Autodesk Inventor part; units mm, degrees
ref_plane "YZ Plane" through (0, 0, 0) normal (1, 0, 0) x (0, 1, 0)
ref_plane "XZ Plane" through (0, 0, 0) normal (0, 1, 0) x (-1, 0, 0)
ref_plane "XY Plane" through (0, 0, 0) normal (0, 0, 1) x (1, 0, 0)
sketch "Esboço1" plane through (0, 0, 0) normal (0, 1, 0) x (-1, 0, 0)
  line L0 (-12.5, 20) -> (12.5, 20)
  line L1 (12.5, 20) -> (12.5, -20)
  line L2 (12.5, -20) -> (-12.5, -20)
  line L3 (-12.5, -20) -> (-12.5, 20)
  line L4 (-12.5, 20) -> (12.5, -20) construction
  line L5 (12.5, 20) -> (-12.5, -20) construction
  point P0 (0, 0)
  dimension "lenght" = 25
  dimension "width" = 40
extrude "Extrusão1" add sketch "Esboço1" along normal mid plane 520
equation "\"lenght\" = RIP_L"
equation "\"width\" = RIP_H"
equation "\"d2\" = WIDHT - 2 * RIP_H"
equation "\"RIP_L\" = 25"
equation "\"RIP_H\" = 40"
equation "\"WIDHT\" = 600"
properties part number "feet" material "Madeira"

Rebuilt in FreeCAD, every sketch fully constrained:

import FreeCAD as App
import Part
import Sketcher
from FreeCAD import Vector
Q = App.Units.Quantity

doc = App.newDocument("Part")
body = doc.addObject("PartDesign::Body", "Body")

# Sketch on XZ plane
sketch1 = body.newObject("Sketcher::SketchObject", "Sketch")
sketch1.AttachmentSupport = (doc.getObject("XZ_Plane"), [""])
sketch1.MapMode = "FlatFace"
sketch1.addGeometry([
    Part.LineSegment(Vector(-12, 20, 0), Vector(12, 20, 0)),
    Part.LineSegment(Vector(12, 20, 0), Vector(12, -20, 0)),
    Part.LineSegment(Vector(12, -20, 0), Vector(-12, -20, 0)),
    Part.LineSegment(Vector(-12, -20, 0), Vector(-12, 20, 0)),
], False)
sketch1.addConstraint([
    Sketcher.Constraint("Coincident", 0, 2, 1, 1),
    Sketcher.Constraint("Coincident", 1, 2, 2, 1),
    Sketcher.Constraint("Coincident", 2, 2, 3, 1),
    Sketcher.Constraint("Coincident", 3, 2, 0, 1),
    Sketcher.Constraint("Horizontal", 0),
    Sketcher.Constraint("Vertical", 1),
    Sketcher.Constraint("Horizontal", 2),
    Sketcher.Constraint("Vertical", 3),
    Sketcher.Constraint("Symmetric", 0, 2, 2, 2, -1, 1),
    Sketcher.Constraint("DistanceX", 0, 1, 0, 2, Q("25 mm")),
    Sketcher.Constraint("DistanceY", 1, 2, 1, 1, Q("40 mm")),
])
pad1 = body.newObject("PartDesign::Pad", "Pad")
pad1.Profile = sketch1
pad1.Length = 520
pad1.Midplane = True

doc.recompute()
